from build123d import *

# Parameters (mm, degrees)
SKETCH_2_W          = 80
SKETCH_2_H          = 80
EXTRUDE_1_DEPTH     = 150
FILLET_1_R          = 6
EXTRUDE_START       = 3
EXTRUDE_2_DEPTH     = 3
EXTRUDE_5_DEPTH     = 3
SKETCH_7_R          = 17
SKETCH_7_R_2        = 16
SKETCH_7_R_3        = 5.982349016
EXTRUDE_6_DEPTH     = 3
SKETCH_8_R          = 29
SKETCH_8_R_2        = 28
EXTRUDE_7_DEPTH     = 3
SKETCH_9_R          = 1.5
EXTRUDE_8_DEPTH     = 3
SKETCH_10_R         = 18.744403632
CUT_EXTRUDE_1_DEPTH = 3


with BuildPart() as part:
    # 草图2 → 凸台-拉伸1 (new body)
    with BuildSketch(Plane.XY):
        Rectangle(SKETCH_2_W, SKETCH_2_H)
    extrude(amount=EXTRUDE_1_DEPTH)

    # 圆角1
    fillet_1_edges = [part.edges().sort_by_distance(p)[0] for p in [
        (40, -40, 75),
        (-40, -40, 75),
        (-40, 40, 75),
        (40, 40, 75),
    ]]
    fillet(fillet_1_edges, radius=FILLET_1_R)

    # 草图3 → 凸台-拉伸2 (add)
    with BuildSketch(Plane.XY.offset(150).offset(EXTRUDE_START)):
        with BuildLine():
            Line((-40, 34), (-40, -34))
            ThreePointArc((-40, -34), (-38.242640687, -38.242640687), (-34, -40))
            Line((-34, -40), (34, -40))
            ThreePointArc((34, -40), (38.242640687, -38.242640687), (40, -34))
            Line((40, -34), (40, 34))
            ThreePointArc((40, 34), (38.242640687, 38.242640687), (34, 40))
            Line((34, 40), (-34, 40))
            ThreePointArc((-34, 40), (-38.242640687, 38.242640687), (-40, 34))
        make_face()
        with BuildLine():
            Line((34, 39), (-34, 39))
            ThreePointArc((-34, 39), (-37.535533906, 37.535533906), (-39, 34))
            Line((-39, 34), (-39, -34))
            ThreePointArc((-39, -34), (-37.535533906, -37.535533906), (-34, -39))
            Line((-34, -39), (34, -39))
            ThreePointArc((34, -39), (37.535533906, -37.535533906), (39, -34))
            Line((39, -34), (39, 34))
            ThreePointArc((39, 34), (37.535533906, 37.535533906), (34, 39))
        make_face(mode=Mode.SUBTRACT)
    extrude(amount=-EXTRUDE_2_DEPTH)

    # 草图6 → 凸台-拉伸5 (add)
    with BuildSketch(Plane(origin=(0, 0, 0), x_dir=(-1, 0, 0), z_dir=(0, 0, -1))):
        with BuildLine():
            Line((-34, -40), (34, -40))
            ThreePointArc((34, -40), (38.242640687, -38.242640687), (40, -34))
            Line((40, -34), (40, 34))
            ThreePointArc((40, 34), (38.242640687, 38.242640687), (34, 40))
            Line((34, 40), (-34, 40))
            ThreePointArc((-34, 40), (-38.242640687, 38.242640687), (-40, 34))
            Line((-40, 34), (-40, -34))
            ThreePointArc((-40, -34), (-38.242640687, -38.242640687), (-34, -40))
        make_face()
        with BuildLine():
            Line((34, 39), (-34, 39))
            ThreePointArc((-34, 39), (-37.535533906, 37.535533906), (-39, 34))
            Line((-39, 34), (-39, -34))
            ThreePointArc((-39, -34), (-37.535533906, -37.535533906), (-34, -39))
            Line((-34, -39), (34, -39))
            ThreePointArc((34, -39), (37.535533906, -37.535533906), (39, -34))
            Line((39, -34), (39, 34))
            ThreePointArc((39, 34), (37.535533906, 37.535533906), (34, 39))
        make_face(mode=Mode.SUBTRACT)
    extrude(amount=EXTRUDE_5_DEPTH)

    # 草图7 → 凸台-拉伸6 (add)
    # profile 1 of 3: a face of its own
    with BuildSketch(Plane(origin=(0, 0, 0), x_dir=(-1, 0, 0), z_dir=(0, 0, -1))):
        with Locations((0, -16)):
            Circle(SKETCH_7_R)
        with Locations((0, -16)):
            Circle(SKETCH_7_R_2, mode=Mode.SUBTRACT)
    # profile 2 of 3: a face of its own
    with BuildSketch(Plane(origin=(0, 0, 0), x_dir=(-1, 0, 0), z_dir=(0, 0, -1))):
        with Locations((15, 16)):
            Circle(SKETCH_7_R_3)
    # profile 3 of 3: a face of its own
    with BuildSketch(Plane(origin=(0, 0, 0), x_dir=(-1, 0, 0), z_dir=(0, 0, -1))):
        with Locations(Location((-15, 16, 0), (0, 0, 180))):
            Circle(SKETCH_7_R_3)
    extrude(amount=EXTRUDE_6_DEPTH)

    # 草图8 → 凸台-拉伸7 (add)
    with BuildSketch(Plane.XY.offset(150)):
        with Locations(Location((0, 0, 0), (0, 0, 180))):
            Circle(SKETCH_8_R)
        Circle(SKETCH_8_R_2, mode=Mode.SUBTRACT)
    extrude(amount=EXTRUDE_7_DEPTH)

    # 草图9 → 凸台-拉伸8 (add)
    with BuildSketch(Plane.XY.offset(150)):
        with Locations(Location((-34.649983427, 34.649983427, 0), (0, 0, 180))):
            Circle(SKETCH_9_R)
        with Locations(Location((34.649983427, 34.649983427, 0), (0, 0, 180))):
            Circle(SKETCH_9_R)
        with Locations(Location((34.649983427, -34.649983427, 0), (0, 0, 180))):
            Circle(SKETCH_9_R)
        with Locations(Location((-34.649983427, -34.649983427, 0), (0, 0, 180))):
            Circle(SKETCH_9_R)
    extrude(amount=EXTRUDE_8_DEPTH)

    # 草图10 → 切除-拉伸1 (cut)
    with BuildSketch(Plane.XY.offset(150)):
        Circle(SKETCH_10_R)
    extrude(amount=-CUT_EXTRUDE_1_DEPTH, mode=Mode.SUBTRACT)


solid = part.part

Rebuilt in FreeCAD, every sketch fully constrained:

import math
import FreeCAD as App
import Part
import Sketcher
from FreeCAD import Vector
Q = App.Units.Quantity


def edges_at(feature, points):
    """Names of the edges that pass closest to the given points."""
    edges = feature.Shape.Edges
    near = lambda p: min(range(len(edges)), key=lambda i: edges[i].distToShape(Part.Vertex(*p))[0])
    return sorted({f"Edge{near(p) + 1}" for p in points})


def add_polygon(sketch, points):
    """Adds a closed chain of lines whose ends are joined by coincident constraints."""
    first, n = sketch.GeometryCount, len(points)
    for a, b in zip(points, points[1:] + points[:1]):
        sketch.addGeometry(Part.LineSegment(App.Vector(*a, 0), App.Vector(*b, 0)), False)
    for i in range(n):
        sketch.addConstraint(Sketcher.Constraint("Coincident", first + i, 2, first + (i + 1) % n, 1))

doc = App.newDocument("Part")
params = doc.addObject("Spreadsheet::Sheet", "Params")
for row, (alias, value) in enumerate([
    ("sketch1_width", "80 mm"),
    ("pad1_length", "150 mm"),
    ("fillet_radius", "6 mm"),
    ("sketch2_radius", "6 mm"),
    ("sketch2_radius2", "5 mm"),
    ("sketch2_width", "68 mm"),
    ("pad2_length", "3 mm"),
    ("sketch3_radius", "6 mm"),
    ("sketch3_radius2", "5 mm"),
    ("sketch3_width", "68 mm"),
    ("pad3_length", "3 mm"),
    ("sketch4_diameter", "34 mm"),
    ("sketch4_diameter2", "32 mm"),
    ("pad4_length", "3 mm"),
    ("sketch5_diameter", "58 mm"),
    ("sketch5_diameter2", "56 mm"),
    ("pad5_length", "3 mm"),
    ("sketch6_diameter", "3 mm"),
    ("pad6_length", "3 mm"),
    ("pocket1_length", "3 mm"),
], start=1):
    params.set(f"A{row}", alias)
    params.set(f"B{row}", "=" + value)
    params.setAlias(f"B{row}", alias)

body = doc.addObject("PartDesign::Body", "Body")

sketch1 = body.newObject("Sketcher::SketchObject", "Sketch")
sketch1.AttachmentSupport = (doc.getObject("XY_Plane"), [""])
sketch1.MapMode = "FlatFace"
add_polygon(sketch1, [(-40, 40), (-40, -40), (40, -40), (40, 40)])
sketch1.addConstraint([
    Sketcher.Constraint("Vertical", 0),
    Sketcher.Constraint("Horizontal", 1),
    Sketcher.Constraint("Vertical", 2),
    Sketcher.Constraint("Horizontal", 3),
    Sketcher.Constraint("Symmetric", 0, 2, 2, 2, -1, 1),
    Sketcher.Constraint("Equal", 3, 0),
    Sketcher.Constraint("DistanceX", 1, 1, 1, 2, Q("80 mm")),
])
sketch1.setExpression("Constraints[10]", "Params.sketch1_width")
pad1 = body.newObject("PartDesign::Pad", "Pad")
pad1.Profile = sketch1
pad1.setExpression("Length", "Params.pad1_length")
doc.recompute()

fillet = body.newObject("PartDesign::Fillet", "Fillet")
fillet.Base = (pad1, edges_at(pad1, [
    (40, -40, 75),
    (-40, -40, 75),
    (-40, 40, 75),
    (40, 40, 75),
]))
fillet.setExpression("Radius", "Params.fillet_radius")

sketch2 = body.newObject("Sketcher::SketchObject", "Sketch001")
sketch2.AttachmentSupport = (doc.getObject("XY_Plane"), [""])
sketch2.MapMode = "FlatFace"
sketch2.AttachmentOffset = App.Placement(Vector(0, 0, 153), App.Rotation())
sketch2.addGeometry([
    Part.LineSegment(Vector(-40, 34, 0), Vector(-40, -34, 0)),
    Part.ArcOfCircle(Part.Circle(Vector(-34, -34, 0), Vector(0, 0, 1), 6), math.radians(180), math.radians(270)),
    Part.LineSegment(Vector(-34, -40, 0), Vector(34, -40, 0)),
    Part.ArcOfCircle(Part.Circle(Vector(34, -34, 0), Vector(0, 0, 1), 6), math.radians(-90), math.radians(0)),
    Part.LineSegment(Vector(40, -34, 0), Vector(40, 34, 0)),
    Part.ArcOfCircle(Part.Circle(Vector(34, 34, 0), Vector(0, 0, 1), 6), math.radians(0), math.radians(90)),
    Part.LineSegment(Vector(34, 40, 0), Vector(-34, 40, 0)),
    Part.ArcOfCircle(Part.Circle(Vector(-34, 34, 0), Vector(0, 0, 1), 6), math.radians(90), math.radians(180)),
    Part.LineSegment(Vector(-34, 39, 0), Vector(34, 39, 0)),
    Part.ArcOfCircle(Part.Circle(Vector(34, 34, 0), Vector(0, 0, 1), 5), math.radians(0), math.radians(90)),
    Part.LineSegment(Vector(39, 34, 0), Vector(39, -34, 0)),
    Part.ArcOfCircle(Part.Circle(Vector(34, -34, 0), Vector(0, 0, 1), 5), math.radians(-90), math.radians(0)),
    Part.LineSegment(Vector(34, -39, 0), Vector(-34, -39, 0)),
    Part.ArcOfCircle(Part.Circle(Vector(-34, -34, 0), Vector(0, 0, 1), 5), math.radians(180), math.radians(270)),
    Part.LineSegment(Vector(-39, -34, 0), Vector(-39, 34, 0)),
    Part.ArcOfCircle(Part.Circle(Vector(-34, 34, 0), Vector(0, 0, 1), 5), math.radians(90), math.radians(180)),
], False)
sketch2.addConstraint([
    Sketcher.Constraint("Tangent", 0, 2, 1, 1),
    Sketcher.Constraint("Tangent", 1, 2, 2, 1),
    Sketcher.Constraint("Tangent", 2, 2, 3, 1),
    Sketcher.Constraint("Tangent", 3, 2, 4, 1),
    Sketcher.Constraint("Tangent", 4, 2, 5, 1),
    Sketcher.Constraint("Tangent", 5, 2, 6, 1),
    Sketcher.Constraint("Tangent", 6, 2, 7, 1),
    Sketcher.Constraint("Tangent", 7, 2, 0, 1),
    Sketcher.Constraint("Tangent", 8, 2, 9, 2),
    Sketcher.Constraint("Tangent", 9, 1, 10, 1),
    Sketcher.Constraint("Tangent", 10, 2, 11, 2),
    Sketcher.Constraint("Tangent", 11, 1, 12, 1),
    Sketcher.Constraint("Tangent", 12, 2, 13, 2),
    Sketcher.Constraint("Tangent", 13, 1, 14, 1),
    Sketcher.Constraint("Tangent", 14, 2, 15, 2),
    Sketcher.Constraint("Tangent", 15, 1, 8, 1),
    Sketcher.Constraint("Vertical", 0),
    Sketcher.Constraint("Horizontal", 2),
    Sketcher.Constraint("Vertical", 4),
    Sketcher.Constraint("Horizontal", 6),
    Sketcher.Constraint("Horizontal", 8),
    Sketcher.Constraint("Vertical", 10),
    Sketcher.Constraint("Horizontal", 12),
    Sketcher.Constraint("Vertical", 14),
    Sketcher.Constraint("Coincident", 9, 3, 5, 3),
    Sketcher.Constraint("Coincident", 11, 3, 3, 3),
    Sketcher.Constraint("Coincident", 13, 3, 1, 3),
    Sketcher.Constraint("Equal", 1, 3),
    Sketcher.Constraint("Equal", 3, 5),
    Sketcher.Constraint("Equal", 5, 7),
    Sketcher.Constraint("Equal", 13, 15),
    Sketcher.Constraint("Symmetric", 1, 3, 5, 3, -1, 1),
    Sketcher.Constraint("Equal", 12, 0),
    Sketcher.Constraint("Radius", 1, Q("6 mm")),
    Sketcher.Constraint("Radius", 9, Q("5 mm")),
    Sketcher.Constraint("DistanceX", 2, 1, 2, 2, Q("68 mm")),
])
sketch2.setExpression("Constraints[33]", "Params.sketch2_radius")
sketch2.setExpression("Constraints[34]", "Params.sketch2_radius2")
sketch2.setExpression("Constraints[35]", "Params.sketch2_width")
pad2 = body.newObject("PartDesign::Pad", "Pad001")
pad2.Profile = sketch2
pad2.setExpression("Length", "Params.pad2_length")
pad2.Reversed = True

sketch3 = body.newObject("Sketcher::SketchObject", "Sketch002")
sketch3.AttachmentSupport = (doc.getObject("XY_Plane"), [""])
sketch3.MapMode = "FlatFace"
sketch3.addGeometry([
    Part.LineSegment(Vector(34, -40, 0), Vector(-34, -40, 0)),
    Part.ArcOfCircle(Part.Circle(Vector(-34, -34, 0), Vector(0, 0, 1), 6), math.radians(180), math.radians(270)),
    Part.LineSegment(Vector(-40, -34, 0), Vector(-40, 34, 0)),
    Part.ArcOfCircle(Part.Circle(Vector(-34, 34, 0), Vector(0, 0, 1), 6), math.radians(90), math.radians(180)),
    Part.LineSegment(Vector(-34, 40, 0), Vector(34, 40, 0)),
    Part.ArcOfCircle(Part.Circle(Vector(34, 34, 0), Vector(0, 0, 1), 6), math.radians(0), math.radians(90)),
    Part.LineSegment(Vector(40, 34, 0), Vector(40, -34, 0)),
    Part.ArcOfCircle(Part.Circle(Vector(34, -34, 0), Vector(0, 0, 1), 6), math.radians(-90), math.radians(0)),
    Part.LineSegment(Vector(34, 39, 0), Vector(-34, 39, 0)),
    Part.ArcOfCircle(Part.Circle(Vector(-34, 34, 0), Vector(0, 0, 1), 5), math.radians(90), math.radians(180)),
    Part.LineSegment(Vector(-39, 34, 0), Vector(-39, -34, 0)),
    Part.ArcOfCircle(Part.Circle(Vector(-34, -34, 0), Vector(0, 0, 1), 5), math.radians(180), math.radians(270)),
    Part.LineSegment(Vector(-34, -39, 0), Vector(34, -39, 0)),
    Part.ArcOfCircle(Part.Circle(Vector(34, -34, 0), Vector(0, 0, 1), 5), math.radians(-90), math.radians(0)),
    Part.LineSegment(Vector(39, -34, 0), Vector(39, 34, 0)),
    Part.ArcOfCircle(Part.Circle(Vector(34, 34, 0), Vector(0, 0, 1), 5), math.radians(0), math.radians(90)),
], False)
sketch3.addConstraint([
    Sketcher.Constraint("Tangent", 0, 2, 1, 2),
    Sketcher.Constraint("Tangent", 1, 1, 2, 1),
    Sketcher.Constraint("Tangent", 2, 2, 3, 2),
    Sketcher.Constraint("Tangent", 3, 1, 4, 1),
    Sketcher.Constraint("Tangent", 4, 2, 5, 2),
    Sketcher.Constraint("Tangent", 5, 1, 6, 1),
    Sketcher.Constraint("Tangent", 6, 2, 7, 2),
    Sketcher.Constraint("Tangent", 7, 1, 0, 1),
    Sketcher.Constraint("Tangent", 8, 2, 9, 1),
    Sketcher.Constraint("Tangent", 9, 2, 10, 1),
    Sketcher.Constraint("Tangent", 10, 2, 11, 1),
    Sketcher.Constraint("Tangent", 11, 2, 12, 1),
    Sketcher.Constraint("Tangent", 12, 2, 13, 1),
    Sketcher.Constraint("Tangent", 13, 2, 14, 1),
    Sketcher.Constraint("Tangent", 14, 2, 15, 1),
    Sketcher.Constraint("Tangent", 15, 2, 8, 1),
    Sketcher.Constraint("Horizontal", 0),
    Sketcher.Constraint("Vertical", 2),
    Sketcher.Constraint("Horizontal", 4),
    Sketcher.Constraint("Vertical", 6),
    Sketcher.Constraint("Horizontal", 8),
    Sketcher.Constraint("Vertical", 10),
    Sketcher.Constraint("Horizontal", 12),
    Sketcher.Constraint("Vertical", 14),
    Sketcher.Constraint("Coincident", 9, 3, 3, 3),
    Sketcher.Constraint("Coincident", 11, 3, 1, 3),
    Sketcher.Constraint("Coincident", 13, 3, 7, 3),
    Sketcher.Constraint("Equal", 1, 3),
    Sketcher.Constraint("Equal", 3, 5),
    Sketcher.Constraint("Equal", 5, 7),
    Sketcher.Constraint("Equal", 13, 15),
    Sketcher.Constraint("Symmetric", 1, 3, 5, 3, -1, 1),
    Sketcher.Constraint("Equal", 12, 2),
    Sketcher.Constraint("Radius", 1, Q("6 mm")),
    Sketcher.Constraint("Radius", 9, Q("5 mm")),
    Sketcher.Constraint("DistanceX", 0, 2, 0, 1, Q("68 mm")),
])
sketch3.setExpression("Constraints[33]", "Params.sketch3_radius")
sketch3.setExpression("Constraints[34]", "Params.sketch3_radius2")
sketch3.setExpression("Constraints[35]", "Params.sketch3_width")
pad3 = body.newObject("PartDesign::Pad", "Pad002")
pad3.Profile = sketch3
pad3.setExpression("Length", "Params.pad3_length")
pad3.Reversed = True

sketch4 = body.newObject("Sketcher::SketchObject", "Sketch003")
sketch4.AttachmentSupport = (doc.getObject("XY_Plane"), [""])
sketch4.MapMode = "FlatFace"
sketch4.addGeometry([
    Part.Circle(Vector(0, -16, 0), Vector(0, 0, 1), 17),
    Part.Circle(Vector(0, -16, 0), Vector(0, 0, 1), 16),
    Part.Circle(Vector(-15, 16, 0), Vector(0, 0, 1), 6),
    Part.Circle(Vector(15, 16, 0), Vector(0, 0, 1), 6),
], False)
sketch4.addConstraint([
    Sketcher.Constraint("Coincident", 1, 3, 0, 3),
    Sketcher.Constraint("Equal", 2, 3),
    Sketcher.Constraint("Symmetric", 2, 3, 3, 3, -2),
    Sketcher.Constraint("PointOnObject", 0, 3, -2),
    Sketcher.Constraint("Diameter", 0, Q("34 mm")),
    Sketcher.Constraint("Diameter", 1, Q("32 mm")),
    Sketcher.Constraint("DistanceY", 0, 3, -1, 1, Q("16 mm")),
    Sketcher.Constraint("DistanceX", 2, 3, -1, 1, Q("15 mm")),
    Sketcher.Constraint("DistanceY", -1, 1, 2, 3, Q("16 mm")),
    Sketcher.Constraint("Diameter", 2, Q("11.964698 mm")),
])
sketch4.setExpression("Constraints[4]", "Params.sketch4_diameter")
sketch4.setExpression("Constraints[5]", "Params.sketch4_diameter2")
pad4 = body.newObject("PartDesign::Pad", "Pad003")
pad4.Profile = sketch4
pad4.setExpression("Length", "Params.pad4_length")
pad4.Reversed = True

sketch5 = body.newObject("Sketcher::SketchObject", "Sketch004")
sketch5.AttachmentSupport = (doc.getObject("XY_Plane"), [""])
sketch5.MapMode = "FlatFace"
sketch5.AttachmentOffset = App.Placement(Vector(0, 0, 150), App.Rotation())
sketch5.addGeometry([
    Part.Circle(Vector(0, 0, 0), Vector(0, 0, 1), 29),
    Part.Circle(Vector(0, 0, 0), Vector(0, 0, 1), 28),
], False)
sketch5.addConstraint([
    Sketcher.Constraint("Coincident", 0, 3, -1, 1),
    Sketcher.Constraint("Coincident", 1, 3, -1, 1),
    Sketcher.Constraint("Diameter", 0, Q("58 mm")),
    Sketcher.Constraint("Diameter", 1, Q("56 mm")),
])
sketch5.setExpression("Constraints[2]", "Params.sketch5_diameter")
sketch5.setExpression("Constraints[3]", "Params.sketch5_diameter2")
pad5 = body.newObject("PartDesign::Pad", "Pad004")
pad5.Profile = sketch5
pad5.setExpression("Length", "Params.pad5_length")

sketch6 = body.newObject("Sketcher::SketchObject", "Sketch005")
sketch6.AttachmentSupport = (doc.getObject("XY_Plane"), [""])
sketch6.MapMode = "FlatFace"
sketch6.AttachmentOffset = App.Placement(Vector(0, 0, 150), App.Rotation())
sketch6.addGeometry([
    Part.Circle(Vector(-34.6, 34.6, 0), Vector(0, 0, 1), 1.5),
    Part.Circle(Vector(34.6, 34.6, 0), Vector(0, 0, 1), 1.5),
    Part.Circle(Vector(34.6, -34.6, 0), Vector(0, 0, 1), 1.5),
    Part.Circle(Vector(-34.6, -34.6, 0), Vector(0, 0, 1), 1.5),
], False)
sketch6.addConstraint([
    Sketcher.Constraint("Equal", 0, 1),
    Sketcher.Constraint("Equal", 1, 2),
    Sketcher.Constraint("Equal", 2, 3),
    Sketcher.Constraint("Symmetric", 0, 3, 2, 3, -1, 1),
    Sketcher.Constraint("Symmetric", 1, 3, 3, 3, -1, 1),
    Sketcher.Constraint("Symmetric", 0, 3, 1, 3, -2),
    Sketcher.Constraint("Diameter", 0, Q("3 mm")),
    Sketcher.Constraint("DistanceX", 0, 3, -1, 1, Q("34.649983 mm")),
    Sketcher.Constraint("DistanceY", -1, 1, 0, 3, Q("34.649983 mm")),
])
sketch6.setExpression("Constraints[6]", "Params.sketch6_diameter")
pad6 = body.newObject("PartDesign::Pad", "Pad005")
pad6.Profile = sketch6
pad6.setExpression("Length", "Params.pad6_length")

sketch7 = body.newObject("Sketcher::SketchObject", "Sketch006")
sketch7.AttachmentSupport = (doc.getObject("XY_Plane"), [""])
sketch7.MapMode = "FlatFace"
sketch7.AttachmentOffset = App.Placement(Vector(0, 0, 150), App.Rotation())
sketch7.addGeometry(Part.Circle(Vector(0, 0, 0), Vector(0, 0, 1), 19), False)
sketch7.addConstraint([
    Sketcher.Constraint("Coincident", 0, 3, -1, 1),
    Sketcher.Constraint("Diameter", 0, Q("37.488807 mm")),
])
pocket1 = body.newObject("PartDesign::Pocket", "Pocket")
pocket1.Profile = sketch7
pocket1.setExpression("Length", "Params.pocket1_length")

doc.recompute()
